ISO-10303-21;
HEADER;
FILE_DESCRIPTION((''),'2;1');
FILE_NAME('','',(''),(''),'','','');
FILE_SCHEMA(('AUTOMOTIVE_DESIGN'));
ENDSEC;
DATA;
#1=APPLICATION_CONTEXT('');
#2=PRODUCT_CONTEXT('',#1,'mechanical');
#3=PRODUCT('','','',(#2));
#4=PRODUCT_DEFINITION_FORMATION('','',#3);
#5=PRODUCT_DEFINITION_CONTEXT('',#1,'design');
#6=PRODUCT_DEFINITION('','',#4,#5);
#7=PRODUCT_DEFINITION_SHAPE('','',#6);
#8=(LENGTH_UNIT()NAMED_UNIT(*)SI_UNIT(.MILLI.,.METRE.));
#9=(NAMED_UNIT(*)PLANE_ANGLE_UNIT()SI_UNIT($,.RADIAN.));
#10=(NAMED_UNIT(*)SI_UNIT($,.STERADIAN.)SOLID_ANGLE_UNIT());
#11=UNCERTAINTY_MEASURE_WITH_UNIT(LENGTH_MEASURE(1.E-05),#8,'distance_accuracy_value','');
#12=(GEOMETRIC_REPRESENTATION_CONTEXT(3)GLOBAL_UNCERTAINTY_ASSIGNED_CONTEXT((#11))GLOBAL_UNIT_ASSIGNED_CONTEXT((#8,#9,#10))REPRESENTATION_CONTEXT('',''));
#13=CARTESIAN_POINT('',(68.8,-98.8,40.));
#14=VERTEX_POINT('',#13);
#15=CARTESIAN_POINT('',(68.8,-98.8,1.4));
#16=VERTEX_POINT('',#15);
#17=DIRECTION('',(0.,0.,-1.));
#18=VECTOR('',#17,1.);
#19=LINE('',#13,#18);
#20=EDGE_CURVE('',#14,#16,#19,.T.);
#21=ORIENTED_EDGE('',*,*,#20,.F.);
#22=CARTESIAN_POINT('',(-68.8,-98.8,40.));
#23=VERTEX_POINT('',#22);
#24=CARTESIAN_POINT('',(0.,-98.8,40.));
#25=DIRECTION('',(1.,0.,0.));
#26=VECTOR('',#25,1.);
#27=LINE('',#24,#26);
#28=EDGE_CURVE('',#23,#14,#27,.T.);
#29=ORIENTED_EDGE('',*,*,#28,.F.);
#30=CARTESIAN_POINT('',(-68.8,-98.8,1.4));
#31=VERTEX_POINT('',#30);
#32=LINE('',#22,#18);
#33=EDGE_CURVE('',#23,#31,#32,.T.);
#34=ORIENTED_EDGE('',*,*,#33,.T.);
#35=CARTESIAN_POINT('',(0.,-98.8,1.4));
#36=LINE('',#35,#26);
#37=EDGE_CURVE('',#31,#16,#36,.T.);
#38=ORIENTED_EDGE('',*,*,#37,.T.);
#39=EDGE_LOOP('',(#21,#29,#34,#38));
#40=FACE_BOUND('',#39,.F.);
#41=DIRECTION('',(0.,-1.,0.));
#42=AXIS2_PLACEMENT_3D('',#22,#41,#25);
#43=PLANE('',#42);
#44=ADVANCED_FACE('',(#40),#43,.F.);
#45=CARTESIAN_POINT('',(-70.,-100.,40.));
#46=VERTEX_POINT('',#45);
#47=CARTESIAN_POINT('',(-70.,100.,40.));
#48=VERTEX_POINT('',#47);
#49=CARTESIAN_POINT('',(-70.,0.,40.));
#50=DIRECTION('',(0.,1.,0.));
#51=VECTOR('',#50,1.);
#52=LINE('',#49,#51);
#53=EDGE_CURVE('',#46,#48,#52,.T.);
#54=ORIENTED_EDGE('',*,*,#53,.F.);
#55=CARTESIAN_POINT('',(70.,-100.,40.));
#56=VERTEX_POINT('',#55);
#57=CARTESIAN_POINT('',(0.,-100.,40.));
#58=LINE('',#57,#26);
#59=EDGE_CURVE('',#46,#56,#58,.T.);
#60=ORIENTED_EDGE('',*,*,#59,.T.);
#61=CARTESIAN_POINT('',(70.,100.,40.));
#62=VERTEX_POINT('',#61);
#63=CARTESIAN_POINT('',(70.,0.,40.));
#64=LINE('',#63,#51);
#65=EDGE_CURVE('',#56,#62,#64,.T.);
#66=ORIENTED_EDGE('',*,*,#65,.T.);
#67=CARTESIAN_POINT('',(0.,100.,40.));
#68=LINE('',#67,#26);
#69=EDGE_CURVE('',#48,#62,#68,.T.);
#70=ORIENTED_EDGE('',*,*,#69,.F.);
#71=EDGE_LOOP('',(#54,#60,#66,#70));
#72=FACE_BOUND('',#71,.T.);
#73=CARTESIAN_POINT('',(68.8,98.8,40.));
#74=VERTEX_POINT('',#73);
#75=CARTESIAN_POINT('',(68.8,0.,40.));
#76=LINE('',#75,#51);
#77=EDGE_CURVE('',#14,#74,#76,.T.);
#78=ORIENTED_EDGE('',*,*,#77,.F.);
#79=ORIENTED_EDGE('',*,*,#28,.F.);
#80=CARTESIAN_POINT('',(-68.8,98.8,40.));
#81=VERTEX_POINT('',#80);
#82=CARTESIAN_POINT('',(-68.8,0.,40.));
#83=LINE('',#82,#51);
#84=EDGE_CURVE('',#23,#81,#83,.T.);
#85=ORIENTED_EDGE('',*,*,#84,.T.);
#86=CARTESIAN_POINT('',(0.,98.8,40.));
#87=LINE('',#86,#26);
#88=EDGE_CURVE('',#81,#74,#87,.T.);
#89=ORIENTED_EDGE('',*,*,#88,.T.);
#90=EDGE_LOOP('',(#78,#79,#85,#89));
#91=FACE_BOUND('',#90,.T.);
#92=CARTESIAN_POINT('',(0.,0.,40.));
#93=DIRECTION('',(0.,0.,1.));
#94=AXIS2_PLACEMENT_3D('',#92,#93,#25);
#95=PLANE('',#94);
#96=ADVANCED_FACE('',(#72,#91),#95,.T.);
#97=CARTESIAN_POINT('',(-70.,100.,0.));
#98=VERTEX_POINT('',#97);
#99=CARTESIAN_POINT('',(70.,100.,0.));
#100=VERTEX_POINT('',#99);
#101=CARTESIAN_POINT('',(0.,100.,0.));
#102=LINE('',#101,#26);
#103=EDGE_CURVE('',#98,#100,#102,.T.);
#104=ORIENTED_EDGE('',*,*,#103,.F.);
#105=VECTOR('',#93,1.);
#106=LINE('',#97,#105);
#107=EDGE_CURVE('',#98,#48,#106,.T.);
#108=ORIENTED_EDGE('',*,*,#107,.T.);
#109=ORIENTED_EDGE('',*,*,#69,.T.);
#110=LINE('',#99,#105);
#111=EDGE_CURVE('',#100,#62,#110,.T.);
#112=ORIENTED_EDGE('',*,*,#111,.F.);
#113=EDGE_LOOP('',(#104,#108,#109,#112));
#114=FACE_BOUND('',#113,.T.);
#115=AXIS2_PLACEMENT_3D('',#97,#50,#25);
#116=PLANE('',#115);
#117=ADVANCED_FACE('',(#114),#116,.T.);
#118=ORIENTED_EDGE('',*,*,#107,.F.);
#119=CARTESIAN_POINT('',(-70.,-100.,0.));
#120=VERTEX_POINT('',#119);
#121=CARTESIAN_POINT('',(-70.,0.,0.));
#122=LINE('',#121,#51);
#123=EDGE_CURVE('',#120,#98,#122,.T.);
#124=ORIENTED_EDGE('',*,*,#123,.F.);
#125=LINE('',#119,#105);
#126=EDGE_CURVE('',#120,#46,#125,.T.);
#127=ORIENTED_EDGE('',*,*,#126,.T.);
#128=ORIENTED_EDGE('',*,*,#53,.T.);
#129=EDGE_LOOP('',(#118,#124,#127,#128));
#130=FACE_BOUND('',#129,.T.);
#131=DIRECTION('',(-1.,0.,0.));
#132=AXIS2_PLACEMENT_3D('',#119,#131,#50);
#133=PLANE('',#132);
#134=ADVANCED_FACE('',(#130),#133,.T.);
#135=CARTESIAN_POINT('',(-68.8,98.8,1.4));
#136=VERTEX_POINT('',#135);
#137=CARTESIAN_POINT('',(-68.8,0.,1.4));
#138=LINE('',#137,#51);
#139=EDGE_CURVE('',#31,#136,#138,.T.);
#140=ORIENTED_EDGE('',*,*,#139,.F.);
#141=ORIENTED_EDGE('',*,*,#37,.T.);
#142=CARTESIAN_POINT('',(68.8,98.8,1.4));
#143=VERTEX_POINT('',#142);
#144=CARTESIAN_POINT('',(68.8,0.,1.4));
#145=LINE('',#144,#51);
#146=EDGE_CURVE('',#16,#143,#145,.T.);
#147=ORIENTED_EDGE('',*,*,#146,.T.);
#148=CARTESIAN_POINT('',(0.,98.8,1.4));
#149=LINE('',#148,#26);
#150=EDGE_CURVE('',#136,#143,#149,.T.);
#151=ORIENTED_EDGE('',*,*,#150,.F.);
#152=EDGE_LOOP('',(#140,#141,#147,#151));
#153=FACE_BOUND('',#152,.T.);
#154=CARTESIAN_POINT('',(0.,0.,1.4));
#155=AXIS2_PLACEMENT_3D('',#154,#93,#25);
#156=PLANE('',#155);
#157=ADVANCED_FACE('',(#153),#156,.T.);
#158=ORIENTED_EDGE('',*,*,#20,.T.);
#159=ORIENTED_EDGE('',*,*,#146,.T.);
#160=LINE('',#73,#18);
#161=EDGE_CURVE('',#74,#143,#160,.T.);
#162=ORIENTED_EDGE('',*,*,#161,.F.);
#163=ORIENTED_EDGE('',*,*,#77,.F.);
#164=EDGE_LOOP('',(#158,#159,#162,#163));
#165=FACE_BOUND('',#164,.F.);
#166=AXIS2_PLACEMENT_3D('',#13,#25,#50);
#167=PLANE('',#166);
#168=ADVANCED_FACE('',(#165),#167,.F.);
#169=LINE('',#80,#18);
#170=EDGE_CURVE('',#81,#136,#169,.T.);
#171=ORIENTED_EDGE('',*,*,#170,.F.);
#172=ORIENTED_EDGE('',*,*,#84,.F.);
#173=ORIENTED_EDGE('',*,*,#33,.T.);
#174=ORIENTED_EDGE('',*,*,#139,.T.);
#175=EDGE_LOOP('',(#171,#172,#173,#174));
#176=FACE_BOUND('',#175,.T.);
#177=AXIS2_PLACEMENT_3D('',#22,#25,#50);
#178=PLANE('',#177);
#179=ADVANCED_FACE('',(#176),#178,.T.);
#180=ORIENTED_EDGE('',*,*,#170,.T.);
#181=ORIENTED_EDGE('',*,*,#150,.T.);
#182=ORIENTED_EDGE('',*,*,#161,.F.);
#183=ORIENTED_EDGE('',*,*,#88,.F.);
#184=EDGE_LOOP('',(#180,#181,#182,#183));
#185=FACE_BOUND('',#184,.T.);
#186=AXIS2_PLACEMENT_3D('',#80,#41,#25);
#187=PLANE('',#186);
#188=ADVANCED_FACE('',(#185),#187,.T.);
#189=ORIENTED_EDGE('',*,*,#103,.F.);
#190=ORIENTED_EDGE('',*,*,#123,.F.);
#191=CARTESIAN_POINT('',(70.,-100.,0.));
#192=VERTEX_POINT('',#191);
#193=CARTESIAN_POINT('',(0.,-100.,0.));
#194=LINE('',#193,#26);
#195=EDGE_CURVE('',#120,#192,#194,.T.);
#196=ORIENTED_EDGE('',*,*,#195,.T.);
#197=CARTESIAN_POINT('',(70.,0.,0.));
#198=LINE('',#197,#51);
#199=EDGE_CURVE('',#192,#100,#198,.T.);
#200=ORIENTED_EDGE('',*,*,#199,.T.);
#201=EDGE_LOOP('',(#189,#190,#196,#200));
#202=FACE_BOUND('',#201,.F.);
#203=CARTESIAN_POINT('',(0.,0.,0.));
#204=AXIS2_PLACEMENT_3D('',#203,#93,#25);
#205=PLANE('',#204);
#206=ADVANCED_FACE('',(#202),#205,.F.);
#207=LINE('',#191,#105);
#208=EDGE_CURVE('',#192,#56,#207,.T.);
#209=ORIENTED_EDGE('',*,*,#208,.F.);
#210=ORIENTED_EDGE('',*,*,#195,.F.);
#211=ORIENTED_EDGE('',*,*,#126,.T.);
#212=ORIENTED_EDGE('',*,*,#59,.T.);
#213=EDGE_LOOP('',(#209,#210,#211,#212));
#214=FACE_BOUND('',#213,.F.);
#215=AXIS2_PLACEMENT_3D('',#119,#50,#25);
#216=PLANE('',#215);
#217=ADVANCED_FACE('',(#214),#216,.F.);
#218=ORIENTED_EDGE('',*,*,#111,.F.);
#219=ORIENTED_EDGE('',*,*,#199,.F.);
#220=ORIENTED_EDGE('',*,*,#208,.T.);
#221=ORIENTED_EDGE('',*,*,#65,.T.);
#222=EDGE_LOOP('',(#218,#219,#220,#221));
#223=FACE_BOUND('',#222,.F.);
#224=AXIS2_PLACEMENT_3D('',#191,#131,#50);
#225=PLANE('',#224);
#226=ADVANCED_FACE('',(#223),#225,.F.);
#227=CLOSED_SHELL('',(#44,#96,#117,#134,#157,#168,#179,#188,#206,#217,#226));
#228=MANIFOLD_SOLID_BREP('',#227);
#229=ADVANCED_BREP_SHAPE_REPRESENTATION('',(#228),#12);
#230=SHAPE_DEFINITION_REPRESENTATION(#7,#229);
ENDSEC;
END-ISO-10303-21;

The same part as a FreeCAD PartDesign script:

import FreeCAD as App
import Part
import Sketcher

V = App.Vector
Q = App.Units.Quantity


def add_polygon(sketch, points):
    """Adds a closed chain of lines whose ends are joined by coincident constraints."""
    first, n = sketch.GeometryCount, len(points)
    for a, b in zip(points, points[1:] + points[:1]):
        sketch.addGeometry(Part.LineSegment(App.Vector(*a, 0), App.Vector(*b, 0)), False)
    for i in range(n):
        sketch.addConstraint(Sketcher.Constraint("Coincident", first + i, 2, first + (i + 1) % n, 1))

doc = App.newDocument("Part")
body = doc.addObject("PartDesign::Body", "Body")

# Sketch on XY plane
sketch1 = body.newObject("Sketcher::SketchObject", "Sketch")
sketch1.AttachmentSupport = (doc.getObject("XY_Plane"), [""])
sketch1.MapMode = "FlatFace"
add_polygon(sketch1, [(-70, 100), (-70, -100), (70, -100), (70, 100)])  # lines 0-3
sketch1.addConstraint([
    Sketcher.Constraint("Vertical", 0),
    Sketcher.Constraint("Horizontal", 1),
    Sketcher.Constraint("Vertical", 2),
    Sketcher.Constraint("Horizontal", 3),
    Sketcher.Constraint("Symmetric", 0, 2, 2, 2, -1, 1),
    Sketcher.Constraint("DistanceX", 1, 1, 1, 2, Q("140 mm")),
    Sketcher.Constraint("DistanceY", 0, 2, 0, 1, Q("200 mm")),
])
pad1 = body.newObject("PartDesign::Pad", "Pad")
pad1.Profile = sketch1
pad1.Length = 40

# Sketch on XY plane
sketch2 = body.newObject("Sketcher::SketchObject", "Sketch001")
sketch2.AttachmentSupport = (doc.getObject("XY_Plane"), [""])
sketch2.MapMode = "FlatFace"
sketch2.AttachmentOffset = App.Placement(V(0, 0, 40), App.Rotation())
add_polygon(sketch2, [(-68.8, 98.8), (-68.8, -98.8), (68.8, -98.8), (68.8, 98.8)])  # lines 0-3
sketch2.addConstraint([
    Sketcher.Constraint("Vertical", 0),
    Sketcher.Constraint("Horizontal", 1),
    Sketcher.Constraint("Vertical", 2),
    Sketcher.Constraint("Horizontal", 3),
    Sketcher.Constraint("Symmetric", 0, 2, 2, 2, -1, 1),
    Sketcher.Constraint("DistanceX", 1, 1, 1, 2, Q("137.6 mm")),
    Sketcher.Constraint("DistanceY", 0, 2, 0, 1, Q("197.6 mm")),
])
pocket1 = body.newObject("PartDesign::Pocket", "Pocket")
pocket1.Profile = sketch2
pocket1.Length = 38.6

doc.recompute()
